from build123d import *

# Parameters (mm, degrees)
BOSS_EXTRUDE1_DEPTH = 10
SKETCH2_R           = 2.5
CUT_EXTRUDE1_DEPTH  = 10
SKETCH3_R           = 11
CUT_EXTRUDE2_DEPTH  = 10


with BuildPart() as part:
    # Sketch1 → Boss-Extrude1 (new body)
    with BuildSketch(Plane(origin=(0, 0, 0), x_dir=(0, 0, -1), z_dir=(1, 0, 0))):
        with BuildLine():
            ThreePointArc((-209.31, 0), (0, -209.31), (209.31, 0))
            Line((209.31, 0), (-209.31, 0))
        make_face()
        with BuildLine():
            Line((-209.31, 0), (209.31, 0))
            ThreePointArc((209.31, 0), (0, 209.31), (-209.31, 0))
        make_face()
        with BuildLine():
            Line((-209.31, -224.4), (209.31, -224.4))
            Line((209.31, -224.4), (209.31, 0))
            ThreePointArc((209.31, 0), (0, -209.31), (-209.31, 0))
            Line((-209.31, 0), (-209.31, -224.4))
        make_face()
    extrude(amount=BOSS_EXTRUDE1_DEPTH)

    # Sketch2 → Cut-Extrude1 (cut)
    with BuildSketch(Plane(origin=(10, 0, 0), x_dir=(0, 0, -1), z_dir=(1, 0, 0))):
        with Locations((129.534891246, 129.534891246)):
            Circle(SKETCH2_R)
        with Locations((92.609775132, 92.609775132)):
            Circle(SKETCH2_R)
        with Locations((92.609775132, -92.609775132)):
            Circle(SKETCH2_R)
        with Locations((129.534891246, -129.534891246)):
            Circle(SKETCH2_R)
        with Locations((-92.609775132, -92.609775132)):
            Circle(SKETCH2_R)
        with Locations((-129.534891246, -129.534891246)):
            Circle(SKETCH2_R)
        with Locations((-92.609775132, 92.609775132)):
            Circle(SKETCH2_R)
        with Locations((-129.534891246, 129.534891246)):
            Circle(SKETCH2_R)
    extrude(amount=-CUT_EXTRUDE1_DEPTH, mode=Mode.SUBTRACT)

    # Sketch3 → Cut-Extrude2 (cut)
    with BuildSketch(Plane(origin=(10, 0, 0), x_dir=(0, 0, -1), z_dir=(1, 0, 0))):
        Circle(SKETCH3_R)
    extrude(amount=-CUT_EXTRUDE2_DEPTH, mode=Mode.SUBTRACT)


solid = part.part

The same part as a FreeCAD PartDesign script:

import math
import FreeCAD as App
import Part
import Sketcher
from FreeCAD import Vector
Q = App.Units.Quantity

doc = App.newDocument("Part")
body = doc.addObject("PartDesign::Body", "Body")

# Sketch on YZ plane
sketch1 = body.newObject("Sketcher::SketchObject", "Sketch")
sketch1.AttachmentSupport = (doc.getObject("YZ_Plane"), [""])
sketch1.MapMode = "FlatFace"
sketch1.addGeometry(Part.ArcOfCircle(Part.Circle(Vector(0, 0, 0), Vector(0, 0, 1), 209), math.radians(-90), math.radians(90)), False)
sketch1.addGeometry(Part.LineSegment(Vector(0, 209, 0), Vector(-224, 209, 0)), False)
sketch1.addGeometry(Part.LineSegment(Vector(-224, 209, 0), Vector(-224, -209, 0)), False)
sketch1.addGeometry(Part.LineSegment(Vector(-224, -209, 0), Vector(0, -209, 0)), False)
sketch1.addConstraint(Sketcher.Constraint("Tangent", 0, 2, 1, 1))
sketch1.addConstraint(Sketcher.Constraint("Coincident", 1, 2, 2, 1))
sketch1.addConstraint(Sketcher.Constraint("Coincident", 2, 2, 3, 1))
sketch1.addConstraint(Sketcher.Constraint("Tangent", 3, 2, 0, 1))
sketch1.addConstraint(Sketcher.Constraint("Horizontal", 1))
sketch1.addConstraint(Sketcher.Constraint("Vertical", 2))
sketch1.addConstraint(Sketcher.Constraint("Horizontal", 3))
sketch1.addConstraint(Sketcher.Constraint("Coincident", 0, 3, -1, 1))
sketch1.addConstraint(Sketcher.Constraint("Radius", 0, Q("209.31 mm")))
sketch1.addConstraint(Sketcher.Constraint("DistanceX", 1, 2, 1, 1, Q("224.4 mm")))
pad1 = body.newObject("PartDesign::Pad", "Pad")
pad1.Profile = sketch1
pad1.Length = 10

# Sketch on YZ plane
sketch2 = body.newObject("Sketcher::SketchObject", "Sketch001")
sketch2.AttachmentSupport = (doc.getObject("YZ_Plane"), [""])
sketch2.MapMode = "FlatFace"
sketch2.AttachmentOffset = App.Placement(Vector(0, 0, 10), App.Rotation())
sketch2.addGeometry(Part.Circle(Vector(129.5, -129.5, 0), Vector(0, 0, 1), 2.5), False)
sketch2.addGeometry(Part.Circle(Vector(92.6, -92.6, 0), Vector(0, 0, 1), 2.5), False)
sketch2.addGeometry(Part.Circle(Vector(-92.6, -92.6, 0), Vector(0, 0, 1), 2.5), False)
sketch2.addGeometry(Part.Circle(Vector(-129.5, -129.5, 0), Vector(0, 0, 1), 2.5), False)
sketch2.addGeometry(Part.Circle(Vector(-92.6, 92.6, 0), Vector(0, 0, 1), 2.5), False)
sketch2.addGeometry(Part.Circle(Vector(-129.5, 129.5, 0), Vector(0, 0, 1), 2.5), False)
sketch2.addGeometry(Part.Circle(Vector(92.6, 92.6, 0), Vector(0, 0, 1), 2.5), False)
sketch2.addGeometry(Part.Circle(Vector(129.5, 129.5, 0), Vector(0, 0, 1), 2.5), False)
sketch2.addConstraint(Sketcher.Constraint("Equal", 0, 1))
sketch2.addConstraint(Sketcher.Constraint("Equal", 1, 2))
sketch2.addConstraint(Sketcher.Constraint("Equal", 2, 3))
sketch2.addConstraint(Sketcher.Constraint("Equal", 3, 4))
sketch2.addConstraint(Sketcher.Constraint("Equal", 4, 5))
sketch2.addConstraint(Sketcher.Constraint("Equal", 5, 6))
sketch2.addConstraint(Sketcher.Constraint("Equal", 6, 7))
sketch2.addConstraint(Sketcher.Constraint("Symmetric", 1, 3, 4, 3, -1, 1))
sketch2.addConstraint(Sketcher.Constraint("Symmetric", 0, 3, 5, 3, -1, 1))
sketch2.addConstraint(Sketcher.Constraint("Symmetric", 2, 3, 6, 3, -1, 1))
sketch2.addConstraint(Sketcher.Constraint("Symmetric", 3, 3, 7, 3, -1, 1))
sketch2.addConstraint(Sketcher.Constraint("Symmetric", 1, 3, 2, 3, -2))
sketch2.addConstraint(Sketcher.Constraint("Symmetric", 0, 3, 3, 3, -2))
sketch2.addConstraint(Sketcher.Constraint("Diameter", 0, Q("5 mm")))
sketch2.addConstraint(Sketcher.Constraint("DistanceX", -1, 1, 0, 3, Q("129.534891 mm")))
sketch2.addConstraint(Sketcher.Constraint("DistanceY", 0, 3, -1, 1, Q("129.534891 mm")))
sketch2.addConstraint(Sketcher.Constraint("DistanceX", 2, 3, 1, 3, Q("185.21955 mm")))
sketch2.addConstraint(Sketcher.Constraint("DistanceY", 2, 3, 4, 3, Q("185.21955 mm")))
pocket1 = body.newObject("PartDesign::Pocket", "Pocket")
pocket1.Profile = sketch2
pocket1.Length = 10

# Sketch on YZ plane
sketch3 = body.newObject("Sketcher::SketchObject", "Sketch002")
sketch3.AttachmentSupport = (doc.getObject("YZ_Plane"), [""])
sketch3.MapMode = "FlatFace"
sketch3.AttachmentOffset = App.Placement(Vector(0, 0, 10), App.Rotation())
sketch3.addGeometry(Part.Circle(Vector(0, 0, 0), Vector(0, 0, 1), 11), False)
sketch3.addConstraint(Sketcher.Constraint("Coincident", 0, 3, -1, 1))
sketch3.addConstraint(Sketcher.Constraint("Diameter", 0, Q("22 mm")))
pocket2 = body.newObject("PartDesign::Pocket", "Pocket001")
pocket2.Profile = sketch3
pocket2.Length = 10

doc.recompute()
